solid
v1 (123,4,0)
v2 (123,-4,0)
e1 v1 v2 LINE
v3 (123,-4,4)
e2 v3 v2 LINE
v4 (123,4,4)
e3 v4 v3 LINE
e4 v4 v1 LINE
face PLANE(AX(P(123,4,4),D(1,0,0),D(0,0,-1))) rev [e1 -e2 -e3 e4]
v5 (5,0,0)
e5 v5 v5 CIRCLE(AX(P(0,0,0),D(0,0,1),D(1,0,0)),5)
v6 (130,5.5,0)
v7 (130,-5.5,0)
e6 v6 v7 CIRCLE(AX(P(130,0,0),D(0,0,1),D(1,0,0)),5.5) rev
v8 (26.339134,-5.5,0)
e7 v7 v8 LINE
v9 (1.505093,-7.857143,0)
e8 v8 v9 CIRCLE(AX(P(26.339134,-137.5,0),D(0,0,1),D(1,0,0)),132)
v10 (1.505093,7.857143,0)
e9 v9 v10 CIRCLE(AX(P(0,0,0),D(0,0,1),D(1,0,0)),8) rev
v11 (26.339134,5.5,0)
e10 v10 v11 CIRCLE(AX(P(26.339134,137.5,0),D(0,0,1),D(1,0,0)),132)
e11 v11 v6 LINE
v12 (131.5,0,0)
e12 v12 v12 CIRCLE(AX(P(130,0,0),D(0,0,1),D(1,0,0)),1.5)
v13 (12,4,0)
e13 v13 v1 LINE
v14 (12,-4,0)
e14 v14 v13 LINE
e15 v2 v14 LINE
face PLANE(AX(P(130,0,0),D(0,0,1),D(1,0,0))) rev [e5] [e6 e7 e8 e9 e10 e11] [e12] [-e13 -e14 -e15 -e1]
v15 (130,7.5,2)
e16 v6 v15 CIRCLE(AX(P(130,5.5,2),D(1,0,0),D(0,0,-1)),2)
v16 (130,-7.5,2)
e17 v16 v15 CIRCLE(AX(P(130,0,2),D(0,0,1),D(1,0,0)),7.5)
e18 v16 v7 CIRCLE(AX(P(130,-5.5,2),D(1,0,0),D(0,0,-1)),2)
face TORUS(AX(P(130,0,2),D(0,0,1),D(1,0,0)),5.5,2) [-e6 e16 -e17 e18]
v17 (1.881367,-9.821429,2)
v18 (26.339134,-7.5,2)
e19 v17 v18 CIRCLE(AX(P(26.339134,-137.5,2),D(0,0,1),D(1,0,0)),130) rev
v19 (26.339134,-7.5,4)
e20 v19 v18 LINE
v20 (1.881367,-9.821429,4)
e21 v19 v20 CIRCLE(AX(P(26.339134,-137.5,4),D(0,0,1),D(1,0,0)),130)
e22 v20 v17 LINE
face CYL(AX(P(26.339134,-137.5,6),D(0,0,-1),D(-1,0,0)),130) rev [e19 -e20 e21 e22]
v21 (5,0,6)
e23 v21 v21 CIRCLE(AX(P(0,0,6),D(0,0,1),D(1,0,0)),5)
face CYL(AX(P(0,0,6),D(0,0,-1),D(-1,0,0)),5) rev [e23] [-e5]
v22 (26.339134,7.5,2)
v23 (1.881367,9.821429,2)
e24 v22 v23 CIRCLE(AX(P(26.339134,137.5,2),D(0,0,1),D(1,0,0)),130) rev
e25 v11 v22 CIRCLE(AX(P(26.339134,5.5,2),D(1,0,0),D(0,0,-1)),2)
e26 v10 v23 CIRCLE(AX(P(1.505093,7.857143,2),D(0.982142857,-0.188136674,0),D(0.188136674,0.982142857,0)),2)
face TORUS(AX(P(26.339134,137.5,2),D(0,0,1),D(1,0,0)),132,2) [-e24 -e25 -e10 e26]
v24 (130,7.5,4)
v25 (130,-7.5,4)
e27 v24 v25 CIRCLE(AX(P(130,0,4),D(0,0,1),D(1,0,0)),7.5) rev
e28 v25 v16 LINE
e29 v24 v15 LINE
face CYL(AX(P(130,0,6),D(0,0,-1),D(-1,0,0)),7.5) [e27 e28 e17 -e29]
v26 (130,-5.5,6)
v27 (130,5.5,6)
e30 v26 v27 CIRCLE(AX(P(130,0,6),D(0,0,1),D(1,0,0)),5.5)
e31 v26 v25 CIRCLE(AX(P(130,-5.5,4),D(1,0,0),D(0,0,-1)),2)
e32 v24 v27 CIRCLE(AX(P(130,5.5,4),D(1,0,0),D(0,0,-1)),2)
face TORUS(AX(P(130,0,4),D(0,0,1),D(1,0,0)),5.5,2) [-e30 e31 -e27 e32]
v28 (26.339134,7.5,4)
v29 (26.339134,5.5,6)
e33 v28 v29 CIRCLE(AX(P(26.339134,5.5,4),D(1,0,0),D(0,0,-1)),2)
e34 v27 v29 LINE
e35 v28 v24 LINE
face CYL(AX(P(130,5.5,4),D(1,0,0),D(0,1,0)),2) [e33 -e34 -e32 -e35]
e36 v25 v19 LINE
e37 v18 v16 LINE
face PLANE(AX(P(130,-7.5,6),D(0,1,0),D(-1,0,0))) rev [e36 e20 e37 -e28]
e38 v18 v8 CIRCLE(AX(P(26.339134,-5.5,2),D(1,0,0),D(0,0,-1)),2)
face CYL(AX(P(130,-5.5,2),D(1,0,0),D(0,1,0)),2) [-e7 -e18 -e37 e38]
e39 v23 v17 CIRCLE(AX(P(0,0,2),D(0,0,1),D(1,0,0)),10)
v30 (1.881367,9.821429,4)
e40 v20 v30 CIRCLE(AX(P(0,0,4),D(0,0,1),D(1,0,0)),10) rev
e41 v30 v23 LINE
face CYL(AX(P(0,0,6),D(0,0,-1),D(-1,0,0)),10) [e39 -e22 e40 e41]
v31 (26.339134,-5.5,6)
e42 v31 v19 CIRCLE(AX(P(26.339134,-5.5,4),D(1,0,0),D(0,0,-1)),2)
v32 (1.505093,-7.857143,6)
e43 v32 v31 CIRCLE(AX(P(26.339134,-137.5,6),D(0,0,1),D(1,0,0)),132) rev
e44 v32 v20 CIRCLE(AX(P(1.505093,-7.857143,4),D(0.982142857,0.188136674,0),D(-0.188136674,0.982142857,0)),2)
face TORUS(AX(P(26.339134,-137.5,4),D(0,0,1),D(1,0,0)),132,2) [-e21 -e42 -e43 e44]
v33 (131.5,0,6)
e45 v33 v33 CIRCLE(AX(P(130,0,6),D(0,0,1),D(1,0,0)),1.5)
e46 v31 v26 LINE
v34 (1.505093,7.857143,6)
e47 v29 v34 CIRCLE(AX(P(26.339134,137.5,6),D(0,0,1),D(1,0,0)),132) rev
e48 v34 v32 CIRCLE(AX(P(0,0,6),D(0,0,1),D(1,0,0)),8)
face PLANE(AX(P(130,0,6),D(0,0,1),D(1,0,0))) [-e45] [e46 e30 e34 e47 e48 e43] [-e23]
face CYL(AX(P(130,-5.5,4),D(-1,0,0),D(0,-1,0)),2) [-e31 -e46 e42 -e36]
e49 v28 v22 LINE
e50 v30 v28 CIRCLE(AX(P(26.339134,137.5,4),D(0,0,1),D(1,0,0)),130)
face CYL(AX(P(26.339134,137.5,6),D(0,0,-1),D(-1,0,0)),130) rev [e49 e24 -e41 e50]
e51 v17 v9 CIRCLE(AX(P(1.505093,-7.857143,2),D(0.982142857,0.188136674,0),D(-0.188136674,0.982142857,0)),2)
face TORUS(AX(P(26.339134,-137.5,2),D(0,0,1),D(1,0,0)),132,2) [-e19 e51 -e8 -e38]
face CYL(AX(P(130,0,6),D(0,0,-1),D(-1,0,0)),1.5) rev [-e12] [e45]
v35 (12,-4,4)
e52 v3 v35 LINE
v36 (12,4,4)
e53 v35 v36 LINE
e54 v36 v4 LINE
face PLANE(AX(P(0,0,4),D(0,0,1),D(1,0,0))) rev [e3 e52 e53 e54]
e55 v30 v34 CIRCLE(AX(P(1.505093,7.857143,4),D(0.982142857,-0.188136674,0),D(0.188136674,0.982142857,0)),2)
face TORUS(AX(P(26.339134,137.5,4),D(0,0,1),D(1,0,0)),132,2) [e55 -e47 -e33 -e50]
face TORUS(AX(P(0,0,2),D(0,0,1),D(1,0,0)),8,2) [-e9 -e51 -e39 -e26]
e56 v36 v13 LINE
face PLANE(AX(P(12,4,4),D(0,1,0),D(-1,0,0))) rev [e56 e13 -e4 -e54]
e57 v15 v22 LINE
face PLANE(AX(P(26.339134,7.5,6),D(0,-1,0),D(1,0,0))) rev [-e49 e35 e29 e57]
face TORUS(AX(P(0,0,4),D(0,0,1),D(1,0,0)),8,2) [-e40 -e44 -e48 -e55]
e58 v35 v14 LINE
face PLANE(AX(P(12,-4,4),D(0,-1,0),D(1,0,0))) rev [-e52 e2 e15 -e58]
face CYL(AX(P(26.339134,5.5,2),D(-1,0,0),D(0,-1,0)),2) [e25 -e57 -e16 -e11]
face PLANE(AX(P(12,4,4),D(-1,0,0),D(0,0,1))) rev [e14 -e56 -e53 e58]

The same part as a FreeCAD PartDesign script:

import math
import FreeCAD as App
import Part
import Sketcher

V = App.Vector
Q = App.Units.Quantity


def edges_at(feature, points):
    """Names of the edges that pass closest to the given points."""
    edges = feature.Shape.Edges
    near = lambda p: min(range(len(edges)), key=lambda i: edges[i].distToShape(Part.Vertex(*p))[0])
    return sorted({f"Edge{near(p) + 1}" for p in points})


def add_polygon(sketch, points):
    """Adds a closed chain of lines whose ends are joined by coincident constraints."""
    first, n = sketch.GeometryCount, len(points)
    for a, b in zip(points, points[1:] + points[:1]):
        sketch.addGeometry(Part.LineSegment(App.Vector(*a, 0), App.Vector(*b, 0)), False)
    for i in range(n):
        sketch.addConstraint(Sketcher.Constraint("Coincident", first + i, 2, first + (i + 1) % n, 1))

doc = App.newDocument("Part")
params = doc.addObject("Spreadsheet::Sheet", "Params")
for row, (alias, value) in enumerate([
    ("sketch1_diameter", "3 mm"),
    ("sketch1_diameter2", "10 mm"),
    ("sketch1_radius", "130 mm"),
    ("sketch1_radius2", "10 mm"),
    ("sketch1_radius3", "7.5 mm"),
    ("pad1_length", "6 mm"),
    ("fillet_radius", "2 mm"),
    ("sketch2_width", "111 mm"),
    ("sketch2_height", "8 mm"),
    ("pocket1_length", "4 mm"),
], start=1):
    params.set(f"A{row}", alias)
    params.set(f"B{row}", "=" + value)
    params.setAlias(f"B{row}", alias)

body = doc.addObject("PartDesign::Body", "Body")

# Sketch on XY plane
sketch1 = body.newObject("Sketcher::SketchObject", "Sketch")
sketch1.AttachmentSupport = (doc.getObject("XY_Plane"), [""])
sketch1.MapMode = "FlatFace"
sketch1.addGeometry(Part.LineSegment(V(130, 7.5, 0), V(26.3, 7.5, 0)), False)
sketch1.addGeometry(Part.ArcOfCircle(Part.Circle(V(26.3, 137.5, 0), V(0, 0, 1), 130), math.radians(-100.84), math.radians(-90)), False)
sketch1.addGeometry(Part.ArcOfCircle(Part.Circle(V(0, 0, 0), V(0, 0, 1), 10), math.radians(79), math.radians(281)), False)
sketch1.addGeometry(Part.ArcOfCircle(Part.Circle(V(26.3, -137.5, 0), V(0, 0, 1), 130), math.radians(90), math.radians(100.84)), False)
sketch1.addGeometry(Part.LineSegment(V(26.3, -7.5, 0), V(130, -7.5, 0)), False)
sketch1.addGeometry(Part.ArcOfCircle(Part.Circle(V(130, 0, 0), V(0, 0, 1), 7.5), math.radians(-90), math.radians(90)), False)
sketch1.addGeometry(Part.Circle(V(130, 0, 0), V(0, 0, 1), 1.5), False)
sketch1.addGeometry(Part.Circle(V(0, 0, 0), V(0, 0, 1), 5), False)
sketch1.addConstraint(Sketcher.Constraint("Tangent", 0, 2, 1, 2))
sketch1.addConstraint(Sketcher.Constraint("Tangent", 1, 1, 2, 1))
sketch1.addConstraint(Sketcher.Constraint("Tangent", 2, 2, 3, 2))
sketch1.addConstraint(Sketcher.Constraint("Tangent", 3, 1, 4, 1))
sketch1.addConstraint(Sketcher.Constraint("Tangent", 4, 2, 5, 1))
sketch1.addConstraint(Sketcher.Constraint("Tangent", 5, 2, 0, 1))
sketch1.addConstraint(Sketcher.Constraint("Horizontal", 0))
sketch1.addConstraint(Sketcher.Constraint("Horizontal", 4))
sketch1.addConstraint(Sketcher.Constraint("Coincident", 2, 3, -1, 1))
sketch1.addConstraint(Sketcher.Constraint("Coincident", 7, 3, -1, 1))
sketch1.addConstraint(Sketcher.Constraint("Coincident", 6, 3, 5, 3))
sketch1.addConstraint(Sketcher.Constraint("Equal", 1, 3))
sketch1.addConstraint(Sketcher.Constraint("PointOnObject", 5, 3, -1))
sketch1.addConstraint(Sketcher.Constraint("Diameter", 6, Q("3 mm")))
sketch1.addConstraint(Sketcher.Constraint("Diameter", 7, Q("10 mm")))
sketch1.addConstraint(Sketcher.Constraint("Radius", 1, Q("130 mm")))
sketch1.addConstraint(Sketcher.Constraint("Radius", 2, Q("10 mm")))
sketch1.addConstraint(Sketcher.Constraint("Radius", 5, Q("7.5 mm")))
sketch1.addConstraint(Sketcher.Constraint("DistanceX", -1, 1, 5, 3, Q("130 mm")))
sketch1.setExpression("Constraints[13]", "Params.sketch1_diameter")
sketch1.setExpression("Constraints[14]", "Params.sketch1_diameter2")
sketch1.setExpression("Constraints[15]", "Params.sketch1_radius")
sketch1.setExpression("Constraints[16]", "Params.sketch1_radius2")
sketch1.setExpression("Constraints[17]", "Params.sketch1_radius3")
pad1 = body.newObject("PartDesign::Pad", "Pad")
pad1.Profile = sketch1
pad1.setExpression("Length", "Params.pad1_length")
doc.recompute()

fillet = body.newObject("PartDesign::Fillet", "Fillet")
fillet.Base = (pad1, edges_at(pad1, [
    (14.055, 8.082, 6),
    (-10, 0, 6),
    (14.055, -8.082, 6),
    (78.17, -7.5, 6),
    (137.5, 0, 6),
    (78.17, -7.5, 0),
    (14.055, -8.082, 0),
    (-10, 0, 0),
    (78.17, 7.5, 6),
    (14.055, 8.082, 0),
    (78.17, 7.5, 0),
    (137.5, 0, 0),
]))
fillet.setExpression("Radius", "Params.fillet_radius")

# Sketch on XY plane
sketch2 = body.newObject("Sketcher::SketchObject", "Sketch001")
sketch2.AttachmentSupport = (doc.getObject("XY_Plane"), [""])
sketch2.MapMode = "FlatFace"
add_polygon(sketch2, [(123, 4), (123, -4), (12, -4), (12, 4)])  # lines 0-3
sketch2.addConstraint(Sketcher.Constraint("Vertical", 0))
sketch2.addConstraint(Sketcher.Constraint("Horizontal", 1))
sketch2.addConstraint(Sketcher.Constraint("Vertical", 2))
sketch2.addConstraint(Sketcher.Constraint("Horizontal", 3))
sketch2.addConstraint(Sketcher.Constraint("DistanceX", 1, 2, 1, 1, Q("111 mm")))
sketch2.addConstraint(Sketcher.Constraint("DistanceY", 0, 2, 0, 1, Q("8 mm")))
sketch2.addConstraint(Sketcher.Constraint("DistanceX", -1, 1, 0, 2, Q("123 mm")))
sketch2.addConstraint(Sketcher.Constraint("DistanceY", 0, 2, -1, 1, Q("4 mm")))
sketch2.setExpression("Constraints[8]", "Params.sketch2_width")
sketch2.setExpression("Constraints[9]", "Params.sketch2_height")
pocket1 = body.newObject("PartDesign::Pocket", "Pocket")
pocket1.Profile = sketch2
pocket1.setExpression("Length", "Params.pocket1_length")
pocket1.Reversed = True

doc.recompute()
